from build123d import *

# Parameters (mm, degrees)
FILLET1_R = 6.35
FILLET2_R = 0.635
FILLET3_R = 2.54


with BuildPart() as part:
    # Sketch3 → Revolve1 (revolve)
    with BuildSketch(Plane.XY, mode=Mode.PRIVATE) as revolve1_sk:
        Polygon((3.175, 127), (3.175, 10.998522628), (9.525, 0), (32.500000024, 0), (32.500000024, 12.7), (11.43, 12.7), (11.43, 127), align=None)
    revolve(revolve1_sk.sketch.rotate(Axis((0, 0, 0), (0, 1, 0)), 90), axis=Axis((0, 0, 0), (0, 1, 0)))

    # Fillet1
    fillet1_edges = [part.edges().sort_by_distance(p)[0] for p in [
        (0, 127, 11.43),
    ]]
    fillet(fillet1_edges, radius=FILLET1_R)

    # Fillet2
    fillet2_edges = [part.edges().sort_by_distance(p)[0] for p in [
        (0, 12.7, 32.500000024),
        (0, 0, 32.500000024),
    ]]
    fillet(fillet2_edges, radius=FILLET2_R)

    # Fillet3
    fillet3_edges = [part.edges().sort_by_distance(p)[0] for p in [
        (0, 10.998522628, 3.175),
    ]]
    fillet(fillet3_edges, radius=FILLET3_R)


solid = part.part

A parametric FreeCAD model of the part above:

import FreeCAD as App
import Part
import Sketcher
from FreeCAD import Vector
Q = App.Units.Quantity


def edges_at(feature, points):
    """Names of the edges that pass closest to the given points."""
    edges = feature.Shape.Edges
    near = lambda p: min(range(len(edges)), key=lambda i: edges[i].distToShape(Part.Vertex(*p))[0])
    return sorted({f"Edge{near(p) + 1}" for p in points})

doc = App.newDocument("Part")
params = doc.addObject("Spreadsheet::Sheet", "Params")
for row, (alias, value) in enumerate([
    ("sketch1_height", "0.5 in"),
    ("sketch1_height2", "4.5 in"),
    ("sketch1_length", "0.5 in"),
    ("sketch1_width", "0.325 in"),
    ("revolution_angle", "360 deg"),
    ("fillet_radius", "0.25 in"),
    ("fillet2_radius", "0.025 in"),
    ("fillet3_radius", "0.1 in"),
], start=1):
    params.set(f"A{row}", alias)
    params.set(f"B{row}", "=" + value)
    params.setAlias(f"B{row}", alias)

body = doc.addObject("PartDesign::Body", "Body")

sketch1 = body.newObject("Sketcher::SketchObject", "Sketch")
sketch1.AttachmentSupport = (doc.getObject("XY_Plane"), [""])
sketch1.MapMode = "FlatFace"
sketch1.addGeometry(Part.LineSegment(Vector(3.175, 127, 0), Vector(3.175, 10.998523, 0)), False)
sketch1.addGeometry(Part.LineSegment(Vector(3.175, 10.998523, 0), Vector(9.525, 0, 0)), False)
sketch1.addGeometry(Part.LineSegment(Vector(9.525, 0, 0), Vector(32.5, 0, 0)), False)
sketch1.addGeometry(Part.LineSegment(Vector(32.5, 0, 0), Vector(32.5, 12.7, 0)), False)
sketch1.addGeometry(Part.LineSegment(Vector(32.5, 12.7, 0), Vector(11.43, 12.7, 0)), False)
sketch1.addGeometry(Part.LineSegment(Vector(11.43, 12.7, 0), Vector(11.43, 127, 0)), False)
sketch1.addGeometry(Part.LineSegment(Vector(11.43, 127, 0), Vector(3.175, 127, 0)), False)
sketch1.addConstraint(Sketcher.Constraint("Coincident", 0, 2, 1, 1))
sketch1.addConstraint(Sketcher.Constraint("Coincident", 1, 2, 2, 1))
sketch1.addConstraint(Sketcher.Constraint("Coincident", 2, 2, 3, 1))
sketch1.addConstraint(Sketcher.Constraint("Coincident", 3, 2, 4, 1))
sketch1.addConstraint(Sketcher.Constraint("Coincident", 4, 2, 5, 1))
sketch1.addConstraint(Sketcher.Constraint("Coincident", 5, 2, 6, 1))
sketch1.addConstraint(Sketcher.Constraint("Coincident", 6, 2, 0, 1))
sketch1.addConstraint(Sketcher.Constraint("Vertical", 0))
sketch1.addConstraint(Sketcher.Constraint("Horizontal", 2))
sketch1.addConstraint(Sketcher.Constraint("Vertical", 3))
sketch1.addConstraint(Sketcher.Constraint("Horizontal", 4))
sketch1.addConstraint(Sketcher.Constraint("Vertical", 5))
sketch1.addConstraint(Sketcher.Constraint("Horizontal", 6))
sketch1.addConstraint(Sketcher.Constraint("PointOnObject", 1, 2, -1))
sketch1.addConstraint(Sketcher.Constraint("DistanceY", 3, 1, 3, 2, Q("0.5 in")))
sketch1.addConstraint(Sketcher.Constraint("DistanceY", 5, 1, 5, 2, Q("4.5 in")))
sketch1.addConstraint(Sketcher.Constraint("Angle", 1, Q("-60 deg")))
sketch1.addConstraint(Sketcher.Constraint("Distance", 1, Q("0.5 in")))
sketch1.addConstraint(Sketcher.Constraint("DistanceX", 6, 2, 6, 1, Q("0.325 in")))
sketch1.addConstraint(Sketcher.Constraint("DistanceX", -1, 1, 4, 2, Q("0.45 in")))
sketch1.addConstraint(Sketcher.Constraint("DistanceX", 2, 1, 2, 2, Q("22.975 mm")))
sketch1.setExpression("Constraints[14]", "Params.sketch1_height")
sketch1.setExpression("Constraints[15]", "Params.sketch1_height2")
sketch1.setExpression("Constraints[17]", "Params.sketch1_length")
sketch1.setExpression("Constraints[18]", "Params.sketch1_width")
revolution = body.newObject("PartDesign::Revolution", "Revolution")
revolution.Profile = sketch1
revolution.ReferenceAxis = (sketch1, ["V_Axis"])
revolution.setExpression("Angle", "Params.revolution_angle")
doc.recompute()

fillet = body.newObject("PartDesign::Fillet", "Fillet")
fillet.Base = (revolution, edges_at(revolution, [(0, 127, 11.43)]))
fillet.setExpression("Radius", "Params.fillet_radius")
doc.recompute()

fillet2 = body.newObject("PartDesign::Fillet", "Fillet001")
fillet2.Base = (fillet, edges_at(fillet, [(0, 12.7, 32.5), (0, 0, 32.5)]))
fillet2.setExpression("Radius", "Params.fillet2_radius")
doc.recompute()

fillet3 = body.newObject("PartDesign::Fillet", "Fillet002")
fillet3.Base = (fillet2, edges_at(fillet2, [(0, 10.999, 3.175)]))
fillet3.setExpression("Radius", "Params.fillet3_radius")

doc.recompute()
